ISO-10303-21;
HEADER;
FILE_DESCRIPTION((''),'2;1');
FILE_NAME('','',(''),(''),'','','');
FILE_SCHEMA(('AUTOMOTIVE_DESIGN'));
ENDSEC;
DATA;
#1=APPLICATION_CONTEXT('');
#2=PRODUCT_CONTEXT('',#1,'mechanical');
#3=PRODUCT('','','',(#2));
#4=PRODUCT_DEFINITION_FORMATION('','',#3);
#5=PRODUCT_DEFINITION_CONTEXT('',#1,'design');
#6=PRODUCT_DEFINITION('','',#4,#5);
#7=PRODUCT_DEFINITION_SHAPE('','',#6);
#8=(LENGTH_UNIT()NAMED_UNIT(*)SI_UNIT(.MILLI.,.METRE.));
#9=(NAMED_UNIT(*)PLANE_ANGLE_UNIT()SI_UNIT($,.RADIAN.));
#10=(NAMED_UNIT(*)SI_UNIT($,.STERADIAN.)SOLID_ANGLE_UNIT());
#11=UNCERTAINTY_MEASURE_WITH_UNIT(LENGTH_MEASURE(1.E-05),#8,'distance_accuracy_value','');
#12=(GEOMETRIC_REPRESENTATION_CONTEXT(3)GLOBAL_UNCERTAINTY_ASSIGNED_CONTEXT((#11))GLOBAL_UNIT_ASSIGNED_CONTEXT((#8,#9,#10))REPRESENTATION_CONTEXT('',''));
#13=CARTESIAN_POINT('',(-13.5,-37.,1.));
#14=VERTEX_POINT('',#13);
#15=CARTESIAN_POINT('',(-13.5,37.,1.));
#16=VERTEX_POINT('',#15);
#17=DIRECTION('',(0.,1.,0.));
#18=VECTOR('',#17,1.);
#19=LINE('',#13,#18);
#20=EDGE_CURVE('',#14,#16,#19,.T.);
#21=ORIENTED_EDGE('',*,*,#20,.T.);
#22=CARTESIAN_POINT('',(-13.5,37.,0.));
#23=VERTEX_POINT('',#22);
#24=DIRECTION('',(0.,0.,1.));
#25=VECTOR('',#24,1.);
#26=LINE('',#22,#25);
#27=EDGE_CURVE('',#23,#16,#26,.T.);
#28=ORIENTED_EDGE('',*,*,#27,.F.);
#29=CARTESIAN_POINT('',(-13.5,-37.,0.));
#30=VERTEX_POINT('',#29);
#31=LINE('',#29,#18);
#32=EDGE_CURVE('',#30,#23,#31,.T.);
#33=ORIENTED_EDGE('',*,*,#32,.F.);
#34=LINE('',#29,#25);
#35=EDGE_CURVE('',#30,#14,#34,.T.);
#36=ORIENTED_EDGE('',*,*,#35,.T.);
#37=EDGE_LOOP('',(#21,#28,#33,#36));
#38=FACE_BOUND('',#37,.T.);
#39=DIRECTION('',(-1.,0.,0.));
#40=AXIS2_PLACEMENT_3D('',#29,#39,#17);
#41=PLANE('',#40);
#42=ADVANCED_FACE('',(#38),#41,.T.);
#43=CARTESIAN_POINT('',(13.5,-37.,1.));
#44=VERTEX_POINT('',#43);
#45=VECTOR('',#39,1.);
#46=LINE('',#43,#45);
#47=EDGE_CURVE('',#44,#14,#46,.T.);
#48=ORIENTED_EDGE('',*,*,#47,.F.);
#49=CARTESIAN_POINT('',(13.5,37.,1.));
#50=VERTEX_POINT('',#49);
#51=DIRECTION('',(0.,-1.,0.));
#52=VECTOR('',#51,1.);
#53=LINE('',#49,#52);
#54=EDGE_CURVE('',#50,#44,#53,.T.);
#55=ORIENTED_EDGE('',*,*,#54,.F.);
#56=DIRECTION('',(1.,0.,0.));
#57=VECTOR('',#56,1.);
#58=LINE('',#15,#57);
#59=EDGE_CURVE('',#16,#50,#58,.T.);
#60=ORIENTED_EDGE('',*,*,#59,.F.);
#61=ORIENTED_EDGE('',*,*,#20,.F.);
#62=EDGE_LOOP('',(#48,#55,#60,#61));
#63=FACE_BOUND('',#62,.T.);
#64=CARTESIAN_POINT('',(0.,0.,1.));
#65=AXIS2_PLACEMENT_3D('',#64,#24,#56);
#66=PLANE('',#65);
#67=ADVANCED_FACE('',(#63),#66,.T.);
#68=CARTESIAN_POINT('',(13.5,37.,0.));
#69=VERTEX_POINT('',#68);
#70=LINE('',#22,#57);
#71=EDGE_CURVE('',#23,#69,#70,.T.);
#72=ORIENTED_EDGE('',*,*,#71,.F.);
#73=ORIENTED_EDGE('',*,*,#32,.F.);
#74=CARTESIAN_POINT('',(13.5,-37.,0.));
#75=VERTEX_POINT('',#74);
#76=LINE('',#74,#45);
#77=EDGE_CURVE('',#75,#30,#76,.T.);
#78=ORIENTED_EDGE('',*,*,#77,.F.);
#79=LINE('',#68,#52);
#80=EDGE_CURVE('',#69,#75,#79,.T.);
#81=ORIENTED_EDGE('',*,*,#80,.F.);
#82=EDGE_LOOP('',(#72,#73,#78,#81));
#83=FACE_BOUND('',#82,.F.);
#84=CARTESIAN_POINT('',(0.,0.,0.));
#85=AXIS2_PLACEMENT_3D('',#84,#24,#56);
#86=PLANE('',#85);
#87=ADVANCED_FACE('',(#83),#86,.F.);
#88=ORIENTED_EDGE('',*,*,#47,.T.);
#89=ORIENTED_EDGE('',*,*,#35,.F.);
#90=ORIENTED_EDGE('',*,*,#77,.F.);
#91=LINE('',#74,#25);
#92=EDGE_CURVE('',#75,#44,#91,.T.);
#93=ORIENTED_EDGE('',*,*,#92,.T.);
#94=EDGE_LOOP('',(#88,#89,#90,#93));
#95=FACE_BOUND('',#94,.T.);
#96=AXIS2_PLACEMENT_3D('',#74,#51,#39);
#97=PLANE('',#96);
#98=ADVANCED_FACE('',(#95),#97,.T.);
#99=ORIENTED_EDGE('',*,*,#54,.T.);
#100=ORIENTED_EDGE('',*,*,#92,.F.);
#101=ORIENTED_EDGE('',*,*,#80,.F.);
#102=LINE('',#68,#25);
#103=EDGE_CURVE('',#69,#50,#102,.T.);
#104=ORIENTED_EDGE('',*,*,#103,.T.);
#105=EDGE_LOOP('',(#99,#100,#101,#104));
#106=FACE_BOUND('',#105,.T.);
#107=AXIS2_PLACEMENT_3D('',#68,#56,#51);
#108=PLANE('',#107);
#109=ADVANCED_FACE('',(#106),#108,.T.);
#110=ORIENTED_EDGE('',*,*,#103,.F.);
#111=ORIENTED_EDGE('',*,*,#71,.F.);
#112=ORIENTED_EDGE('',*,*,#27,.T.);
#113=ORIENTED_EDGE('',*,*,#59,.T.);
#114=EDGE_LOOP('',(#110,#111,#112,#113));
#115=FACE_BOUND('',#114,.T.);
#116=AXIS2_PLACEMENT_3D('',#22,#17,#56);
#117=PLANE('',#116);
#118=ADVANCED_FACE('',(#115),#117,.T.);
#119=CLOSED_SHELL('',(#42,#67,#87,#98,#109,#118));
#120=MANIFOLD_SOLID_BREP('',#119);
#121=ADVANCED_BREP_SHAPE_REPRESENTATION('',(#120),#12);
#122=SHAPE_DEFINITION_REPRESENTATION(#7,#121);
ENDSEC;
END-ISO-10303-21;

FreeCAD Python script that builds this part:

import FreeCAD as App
import Part
import Sketcher
from FreeCAD import Vector
Q = App.Units.Quantity

doc = App.newDocument("Part")
body = doc.addObject("PartDesign::Body", "Body")

sketch1 = doc.addObject("Sketcher::SketchObject", "Sketch")
body.addObject(sketch1)
sketch1.AttachmentSupport = (doc.XY_Plane, [""])
sketch1.MapMode = "FlatFace"
sketch1.addGeometry([
    Part.LineSegment(Vector(-13.5, -37, 0), Vector(13.5, -37, 0)),
    Part.LineSegment(Vector(13.5, -37, 0), Vector(13.5, 37, 0)),
    Part.LineSegment(Vector(13.5, 37, 0), Vector(-13.5, 37, 0)),
    Part.LineSegment(Vector(-13.5, 37, 0), Vector(-13.5, -37, 0)),
], False)
sketch1.addConstraint([
    Sketcher.Constraint("Coincident", 0, 2, 1, 1),
    Sketcher.Constraint("Coincident", 1, 2, 2, 1),
    Sketcher.Constraint("Coincident", 2, 2, 3, 1),
    Sketcher.Constraint("Coincident", 3, 2, 0, 1),
    Sketcher.Constraint("Horizontal", 0),
    Sketcher.Constraint("Vertical", 1),
    Sketcher.Constraint("Horizontal", 2),
    Sketcher.Constraint("Vertical", 3),
    Sketcher.Constraint("Symmetric", 0, 2, 2, 2, -1, 1),
    Sketcher.Constraint("DistanceX", 0, 1, 0, 2, Q("27 mm")),
    Sketcher.Constraint("DistanceY", 1, 1, 1, 2, Q("74 mm")),
])
pad1 = doc.addObject("PartDesign::Pad", "Pad")
body.addObject(pad1)
pad1.Profile = sketch1
pad1.Length = 1

doc.recompute()
